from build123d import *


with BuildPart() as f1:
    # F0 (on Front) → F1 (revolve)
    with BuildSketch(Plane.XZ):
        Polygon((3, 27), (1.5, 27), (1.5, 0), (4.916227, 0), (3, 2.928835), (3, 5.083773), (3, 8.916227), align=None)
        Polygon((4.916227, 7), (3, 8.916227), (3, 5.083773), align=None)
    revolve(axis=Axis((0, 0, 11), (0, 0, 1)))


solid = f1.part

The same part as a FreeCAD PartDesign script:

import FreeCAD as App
import Part
import Sketcher

V = App.Vector
Q = App.Units.Quantity


def add_polygon(sketch, points):
    """Adds a closed chain of lines whose ends are joined by coincident constraints."""
    first, n = sketch.GeometryCount, len(points)
    for a, b in zip(points, points[1:] + points[:1]):
        sketch.addGeometry(Part.LineSegment(App.Vector(*a, 0), App.Vector(*b, 0)), False)
    for i in range(n):
        sketch.addConstraint(Sketcher.Constraint("Coincident", first + i, 2, first + (i + 1) % n, 1))

doc = App.newDocument("Part")
body = doc.addObject("PartDesign::Body", "Body")

# Sketch on XZ plane
sketch1 = body.newObject("Sketcher::SketchObject", "Sketch")
sketch1.AttachmentSupport = (doc.getObject("XZ_Plane"), [""])
sketch1.MapMode = "FlatFace"
add_polygon(sketch1, [(3, 27), (1.5, 27), (1.5, 0), (4.9, 0), (3, 2.9), (3, 5.1), (4.9, 7), (3, 8.9)])  # lines 0-7
sketch1.addConstraint(Sketcher.Constraint("Horizontal", 0))
sketch1.addConstraint(Sketcher.Constraint("Vertical", 1))
sketch1.addConstraint(Sketcher.Constraint("Horizontal", 2))
sketch1.addConstraint(Sketcher.Constraint("Vertical", 4))
sketch1.addConstraint(Sketcher.Constraint("Vertical", 7))
sketch1.addConstraint(Sketcher.Constraint("PointOnObject", 1, 2, -1))
sketch1.addConstraint(Sketcher.Constraint("Perpendicular", 5, 6))
sketch1.addConstraint(Sketcher.Constraint("Vertical", 2, 2, 5, 2))
sketch1.addConstraint(Sketcher.Constraint("Vertical", 4, 2, 6, 2))
sketch1.addConstraint(Sketcher.Constraint("Equal", 5, 6))
sketch1.addConstraint(Sketcher.Constraint("DistanceY", 1, 2, 1, 1, Q("27 mm")))
sketch1.addConstraint(Sketcher.Constraint("DistanceX", 0, 2, 0, 1, Q("1.5 mm")))
sketch1.addConstraint(Sketcher.Constraint("DistanceX", -1, 1, 3, 2, Q("3 mm")))
sketch1.addConstraint(Sketcher.Constraint("DistanceY", -1, 1, 5, 2, Q("7 mm")))
sketch1.addConstraint(Sketcher.Constraint("Distance", 3, Q("3.5 mm")))
sketch1.addConstraint(Sketcher.Constraint("DistanceY", 4, 1, 4, 2, Q("2.154938 mm")))
revolution = body.newObject("PartDesign::Revolution", "Revolution")
revolution.Profile = sketch1
revolution.ReferenceAxis = (sketch1, ["V_Axis"])
revolution.Angle = 360

doc.recompute()
